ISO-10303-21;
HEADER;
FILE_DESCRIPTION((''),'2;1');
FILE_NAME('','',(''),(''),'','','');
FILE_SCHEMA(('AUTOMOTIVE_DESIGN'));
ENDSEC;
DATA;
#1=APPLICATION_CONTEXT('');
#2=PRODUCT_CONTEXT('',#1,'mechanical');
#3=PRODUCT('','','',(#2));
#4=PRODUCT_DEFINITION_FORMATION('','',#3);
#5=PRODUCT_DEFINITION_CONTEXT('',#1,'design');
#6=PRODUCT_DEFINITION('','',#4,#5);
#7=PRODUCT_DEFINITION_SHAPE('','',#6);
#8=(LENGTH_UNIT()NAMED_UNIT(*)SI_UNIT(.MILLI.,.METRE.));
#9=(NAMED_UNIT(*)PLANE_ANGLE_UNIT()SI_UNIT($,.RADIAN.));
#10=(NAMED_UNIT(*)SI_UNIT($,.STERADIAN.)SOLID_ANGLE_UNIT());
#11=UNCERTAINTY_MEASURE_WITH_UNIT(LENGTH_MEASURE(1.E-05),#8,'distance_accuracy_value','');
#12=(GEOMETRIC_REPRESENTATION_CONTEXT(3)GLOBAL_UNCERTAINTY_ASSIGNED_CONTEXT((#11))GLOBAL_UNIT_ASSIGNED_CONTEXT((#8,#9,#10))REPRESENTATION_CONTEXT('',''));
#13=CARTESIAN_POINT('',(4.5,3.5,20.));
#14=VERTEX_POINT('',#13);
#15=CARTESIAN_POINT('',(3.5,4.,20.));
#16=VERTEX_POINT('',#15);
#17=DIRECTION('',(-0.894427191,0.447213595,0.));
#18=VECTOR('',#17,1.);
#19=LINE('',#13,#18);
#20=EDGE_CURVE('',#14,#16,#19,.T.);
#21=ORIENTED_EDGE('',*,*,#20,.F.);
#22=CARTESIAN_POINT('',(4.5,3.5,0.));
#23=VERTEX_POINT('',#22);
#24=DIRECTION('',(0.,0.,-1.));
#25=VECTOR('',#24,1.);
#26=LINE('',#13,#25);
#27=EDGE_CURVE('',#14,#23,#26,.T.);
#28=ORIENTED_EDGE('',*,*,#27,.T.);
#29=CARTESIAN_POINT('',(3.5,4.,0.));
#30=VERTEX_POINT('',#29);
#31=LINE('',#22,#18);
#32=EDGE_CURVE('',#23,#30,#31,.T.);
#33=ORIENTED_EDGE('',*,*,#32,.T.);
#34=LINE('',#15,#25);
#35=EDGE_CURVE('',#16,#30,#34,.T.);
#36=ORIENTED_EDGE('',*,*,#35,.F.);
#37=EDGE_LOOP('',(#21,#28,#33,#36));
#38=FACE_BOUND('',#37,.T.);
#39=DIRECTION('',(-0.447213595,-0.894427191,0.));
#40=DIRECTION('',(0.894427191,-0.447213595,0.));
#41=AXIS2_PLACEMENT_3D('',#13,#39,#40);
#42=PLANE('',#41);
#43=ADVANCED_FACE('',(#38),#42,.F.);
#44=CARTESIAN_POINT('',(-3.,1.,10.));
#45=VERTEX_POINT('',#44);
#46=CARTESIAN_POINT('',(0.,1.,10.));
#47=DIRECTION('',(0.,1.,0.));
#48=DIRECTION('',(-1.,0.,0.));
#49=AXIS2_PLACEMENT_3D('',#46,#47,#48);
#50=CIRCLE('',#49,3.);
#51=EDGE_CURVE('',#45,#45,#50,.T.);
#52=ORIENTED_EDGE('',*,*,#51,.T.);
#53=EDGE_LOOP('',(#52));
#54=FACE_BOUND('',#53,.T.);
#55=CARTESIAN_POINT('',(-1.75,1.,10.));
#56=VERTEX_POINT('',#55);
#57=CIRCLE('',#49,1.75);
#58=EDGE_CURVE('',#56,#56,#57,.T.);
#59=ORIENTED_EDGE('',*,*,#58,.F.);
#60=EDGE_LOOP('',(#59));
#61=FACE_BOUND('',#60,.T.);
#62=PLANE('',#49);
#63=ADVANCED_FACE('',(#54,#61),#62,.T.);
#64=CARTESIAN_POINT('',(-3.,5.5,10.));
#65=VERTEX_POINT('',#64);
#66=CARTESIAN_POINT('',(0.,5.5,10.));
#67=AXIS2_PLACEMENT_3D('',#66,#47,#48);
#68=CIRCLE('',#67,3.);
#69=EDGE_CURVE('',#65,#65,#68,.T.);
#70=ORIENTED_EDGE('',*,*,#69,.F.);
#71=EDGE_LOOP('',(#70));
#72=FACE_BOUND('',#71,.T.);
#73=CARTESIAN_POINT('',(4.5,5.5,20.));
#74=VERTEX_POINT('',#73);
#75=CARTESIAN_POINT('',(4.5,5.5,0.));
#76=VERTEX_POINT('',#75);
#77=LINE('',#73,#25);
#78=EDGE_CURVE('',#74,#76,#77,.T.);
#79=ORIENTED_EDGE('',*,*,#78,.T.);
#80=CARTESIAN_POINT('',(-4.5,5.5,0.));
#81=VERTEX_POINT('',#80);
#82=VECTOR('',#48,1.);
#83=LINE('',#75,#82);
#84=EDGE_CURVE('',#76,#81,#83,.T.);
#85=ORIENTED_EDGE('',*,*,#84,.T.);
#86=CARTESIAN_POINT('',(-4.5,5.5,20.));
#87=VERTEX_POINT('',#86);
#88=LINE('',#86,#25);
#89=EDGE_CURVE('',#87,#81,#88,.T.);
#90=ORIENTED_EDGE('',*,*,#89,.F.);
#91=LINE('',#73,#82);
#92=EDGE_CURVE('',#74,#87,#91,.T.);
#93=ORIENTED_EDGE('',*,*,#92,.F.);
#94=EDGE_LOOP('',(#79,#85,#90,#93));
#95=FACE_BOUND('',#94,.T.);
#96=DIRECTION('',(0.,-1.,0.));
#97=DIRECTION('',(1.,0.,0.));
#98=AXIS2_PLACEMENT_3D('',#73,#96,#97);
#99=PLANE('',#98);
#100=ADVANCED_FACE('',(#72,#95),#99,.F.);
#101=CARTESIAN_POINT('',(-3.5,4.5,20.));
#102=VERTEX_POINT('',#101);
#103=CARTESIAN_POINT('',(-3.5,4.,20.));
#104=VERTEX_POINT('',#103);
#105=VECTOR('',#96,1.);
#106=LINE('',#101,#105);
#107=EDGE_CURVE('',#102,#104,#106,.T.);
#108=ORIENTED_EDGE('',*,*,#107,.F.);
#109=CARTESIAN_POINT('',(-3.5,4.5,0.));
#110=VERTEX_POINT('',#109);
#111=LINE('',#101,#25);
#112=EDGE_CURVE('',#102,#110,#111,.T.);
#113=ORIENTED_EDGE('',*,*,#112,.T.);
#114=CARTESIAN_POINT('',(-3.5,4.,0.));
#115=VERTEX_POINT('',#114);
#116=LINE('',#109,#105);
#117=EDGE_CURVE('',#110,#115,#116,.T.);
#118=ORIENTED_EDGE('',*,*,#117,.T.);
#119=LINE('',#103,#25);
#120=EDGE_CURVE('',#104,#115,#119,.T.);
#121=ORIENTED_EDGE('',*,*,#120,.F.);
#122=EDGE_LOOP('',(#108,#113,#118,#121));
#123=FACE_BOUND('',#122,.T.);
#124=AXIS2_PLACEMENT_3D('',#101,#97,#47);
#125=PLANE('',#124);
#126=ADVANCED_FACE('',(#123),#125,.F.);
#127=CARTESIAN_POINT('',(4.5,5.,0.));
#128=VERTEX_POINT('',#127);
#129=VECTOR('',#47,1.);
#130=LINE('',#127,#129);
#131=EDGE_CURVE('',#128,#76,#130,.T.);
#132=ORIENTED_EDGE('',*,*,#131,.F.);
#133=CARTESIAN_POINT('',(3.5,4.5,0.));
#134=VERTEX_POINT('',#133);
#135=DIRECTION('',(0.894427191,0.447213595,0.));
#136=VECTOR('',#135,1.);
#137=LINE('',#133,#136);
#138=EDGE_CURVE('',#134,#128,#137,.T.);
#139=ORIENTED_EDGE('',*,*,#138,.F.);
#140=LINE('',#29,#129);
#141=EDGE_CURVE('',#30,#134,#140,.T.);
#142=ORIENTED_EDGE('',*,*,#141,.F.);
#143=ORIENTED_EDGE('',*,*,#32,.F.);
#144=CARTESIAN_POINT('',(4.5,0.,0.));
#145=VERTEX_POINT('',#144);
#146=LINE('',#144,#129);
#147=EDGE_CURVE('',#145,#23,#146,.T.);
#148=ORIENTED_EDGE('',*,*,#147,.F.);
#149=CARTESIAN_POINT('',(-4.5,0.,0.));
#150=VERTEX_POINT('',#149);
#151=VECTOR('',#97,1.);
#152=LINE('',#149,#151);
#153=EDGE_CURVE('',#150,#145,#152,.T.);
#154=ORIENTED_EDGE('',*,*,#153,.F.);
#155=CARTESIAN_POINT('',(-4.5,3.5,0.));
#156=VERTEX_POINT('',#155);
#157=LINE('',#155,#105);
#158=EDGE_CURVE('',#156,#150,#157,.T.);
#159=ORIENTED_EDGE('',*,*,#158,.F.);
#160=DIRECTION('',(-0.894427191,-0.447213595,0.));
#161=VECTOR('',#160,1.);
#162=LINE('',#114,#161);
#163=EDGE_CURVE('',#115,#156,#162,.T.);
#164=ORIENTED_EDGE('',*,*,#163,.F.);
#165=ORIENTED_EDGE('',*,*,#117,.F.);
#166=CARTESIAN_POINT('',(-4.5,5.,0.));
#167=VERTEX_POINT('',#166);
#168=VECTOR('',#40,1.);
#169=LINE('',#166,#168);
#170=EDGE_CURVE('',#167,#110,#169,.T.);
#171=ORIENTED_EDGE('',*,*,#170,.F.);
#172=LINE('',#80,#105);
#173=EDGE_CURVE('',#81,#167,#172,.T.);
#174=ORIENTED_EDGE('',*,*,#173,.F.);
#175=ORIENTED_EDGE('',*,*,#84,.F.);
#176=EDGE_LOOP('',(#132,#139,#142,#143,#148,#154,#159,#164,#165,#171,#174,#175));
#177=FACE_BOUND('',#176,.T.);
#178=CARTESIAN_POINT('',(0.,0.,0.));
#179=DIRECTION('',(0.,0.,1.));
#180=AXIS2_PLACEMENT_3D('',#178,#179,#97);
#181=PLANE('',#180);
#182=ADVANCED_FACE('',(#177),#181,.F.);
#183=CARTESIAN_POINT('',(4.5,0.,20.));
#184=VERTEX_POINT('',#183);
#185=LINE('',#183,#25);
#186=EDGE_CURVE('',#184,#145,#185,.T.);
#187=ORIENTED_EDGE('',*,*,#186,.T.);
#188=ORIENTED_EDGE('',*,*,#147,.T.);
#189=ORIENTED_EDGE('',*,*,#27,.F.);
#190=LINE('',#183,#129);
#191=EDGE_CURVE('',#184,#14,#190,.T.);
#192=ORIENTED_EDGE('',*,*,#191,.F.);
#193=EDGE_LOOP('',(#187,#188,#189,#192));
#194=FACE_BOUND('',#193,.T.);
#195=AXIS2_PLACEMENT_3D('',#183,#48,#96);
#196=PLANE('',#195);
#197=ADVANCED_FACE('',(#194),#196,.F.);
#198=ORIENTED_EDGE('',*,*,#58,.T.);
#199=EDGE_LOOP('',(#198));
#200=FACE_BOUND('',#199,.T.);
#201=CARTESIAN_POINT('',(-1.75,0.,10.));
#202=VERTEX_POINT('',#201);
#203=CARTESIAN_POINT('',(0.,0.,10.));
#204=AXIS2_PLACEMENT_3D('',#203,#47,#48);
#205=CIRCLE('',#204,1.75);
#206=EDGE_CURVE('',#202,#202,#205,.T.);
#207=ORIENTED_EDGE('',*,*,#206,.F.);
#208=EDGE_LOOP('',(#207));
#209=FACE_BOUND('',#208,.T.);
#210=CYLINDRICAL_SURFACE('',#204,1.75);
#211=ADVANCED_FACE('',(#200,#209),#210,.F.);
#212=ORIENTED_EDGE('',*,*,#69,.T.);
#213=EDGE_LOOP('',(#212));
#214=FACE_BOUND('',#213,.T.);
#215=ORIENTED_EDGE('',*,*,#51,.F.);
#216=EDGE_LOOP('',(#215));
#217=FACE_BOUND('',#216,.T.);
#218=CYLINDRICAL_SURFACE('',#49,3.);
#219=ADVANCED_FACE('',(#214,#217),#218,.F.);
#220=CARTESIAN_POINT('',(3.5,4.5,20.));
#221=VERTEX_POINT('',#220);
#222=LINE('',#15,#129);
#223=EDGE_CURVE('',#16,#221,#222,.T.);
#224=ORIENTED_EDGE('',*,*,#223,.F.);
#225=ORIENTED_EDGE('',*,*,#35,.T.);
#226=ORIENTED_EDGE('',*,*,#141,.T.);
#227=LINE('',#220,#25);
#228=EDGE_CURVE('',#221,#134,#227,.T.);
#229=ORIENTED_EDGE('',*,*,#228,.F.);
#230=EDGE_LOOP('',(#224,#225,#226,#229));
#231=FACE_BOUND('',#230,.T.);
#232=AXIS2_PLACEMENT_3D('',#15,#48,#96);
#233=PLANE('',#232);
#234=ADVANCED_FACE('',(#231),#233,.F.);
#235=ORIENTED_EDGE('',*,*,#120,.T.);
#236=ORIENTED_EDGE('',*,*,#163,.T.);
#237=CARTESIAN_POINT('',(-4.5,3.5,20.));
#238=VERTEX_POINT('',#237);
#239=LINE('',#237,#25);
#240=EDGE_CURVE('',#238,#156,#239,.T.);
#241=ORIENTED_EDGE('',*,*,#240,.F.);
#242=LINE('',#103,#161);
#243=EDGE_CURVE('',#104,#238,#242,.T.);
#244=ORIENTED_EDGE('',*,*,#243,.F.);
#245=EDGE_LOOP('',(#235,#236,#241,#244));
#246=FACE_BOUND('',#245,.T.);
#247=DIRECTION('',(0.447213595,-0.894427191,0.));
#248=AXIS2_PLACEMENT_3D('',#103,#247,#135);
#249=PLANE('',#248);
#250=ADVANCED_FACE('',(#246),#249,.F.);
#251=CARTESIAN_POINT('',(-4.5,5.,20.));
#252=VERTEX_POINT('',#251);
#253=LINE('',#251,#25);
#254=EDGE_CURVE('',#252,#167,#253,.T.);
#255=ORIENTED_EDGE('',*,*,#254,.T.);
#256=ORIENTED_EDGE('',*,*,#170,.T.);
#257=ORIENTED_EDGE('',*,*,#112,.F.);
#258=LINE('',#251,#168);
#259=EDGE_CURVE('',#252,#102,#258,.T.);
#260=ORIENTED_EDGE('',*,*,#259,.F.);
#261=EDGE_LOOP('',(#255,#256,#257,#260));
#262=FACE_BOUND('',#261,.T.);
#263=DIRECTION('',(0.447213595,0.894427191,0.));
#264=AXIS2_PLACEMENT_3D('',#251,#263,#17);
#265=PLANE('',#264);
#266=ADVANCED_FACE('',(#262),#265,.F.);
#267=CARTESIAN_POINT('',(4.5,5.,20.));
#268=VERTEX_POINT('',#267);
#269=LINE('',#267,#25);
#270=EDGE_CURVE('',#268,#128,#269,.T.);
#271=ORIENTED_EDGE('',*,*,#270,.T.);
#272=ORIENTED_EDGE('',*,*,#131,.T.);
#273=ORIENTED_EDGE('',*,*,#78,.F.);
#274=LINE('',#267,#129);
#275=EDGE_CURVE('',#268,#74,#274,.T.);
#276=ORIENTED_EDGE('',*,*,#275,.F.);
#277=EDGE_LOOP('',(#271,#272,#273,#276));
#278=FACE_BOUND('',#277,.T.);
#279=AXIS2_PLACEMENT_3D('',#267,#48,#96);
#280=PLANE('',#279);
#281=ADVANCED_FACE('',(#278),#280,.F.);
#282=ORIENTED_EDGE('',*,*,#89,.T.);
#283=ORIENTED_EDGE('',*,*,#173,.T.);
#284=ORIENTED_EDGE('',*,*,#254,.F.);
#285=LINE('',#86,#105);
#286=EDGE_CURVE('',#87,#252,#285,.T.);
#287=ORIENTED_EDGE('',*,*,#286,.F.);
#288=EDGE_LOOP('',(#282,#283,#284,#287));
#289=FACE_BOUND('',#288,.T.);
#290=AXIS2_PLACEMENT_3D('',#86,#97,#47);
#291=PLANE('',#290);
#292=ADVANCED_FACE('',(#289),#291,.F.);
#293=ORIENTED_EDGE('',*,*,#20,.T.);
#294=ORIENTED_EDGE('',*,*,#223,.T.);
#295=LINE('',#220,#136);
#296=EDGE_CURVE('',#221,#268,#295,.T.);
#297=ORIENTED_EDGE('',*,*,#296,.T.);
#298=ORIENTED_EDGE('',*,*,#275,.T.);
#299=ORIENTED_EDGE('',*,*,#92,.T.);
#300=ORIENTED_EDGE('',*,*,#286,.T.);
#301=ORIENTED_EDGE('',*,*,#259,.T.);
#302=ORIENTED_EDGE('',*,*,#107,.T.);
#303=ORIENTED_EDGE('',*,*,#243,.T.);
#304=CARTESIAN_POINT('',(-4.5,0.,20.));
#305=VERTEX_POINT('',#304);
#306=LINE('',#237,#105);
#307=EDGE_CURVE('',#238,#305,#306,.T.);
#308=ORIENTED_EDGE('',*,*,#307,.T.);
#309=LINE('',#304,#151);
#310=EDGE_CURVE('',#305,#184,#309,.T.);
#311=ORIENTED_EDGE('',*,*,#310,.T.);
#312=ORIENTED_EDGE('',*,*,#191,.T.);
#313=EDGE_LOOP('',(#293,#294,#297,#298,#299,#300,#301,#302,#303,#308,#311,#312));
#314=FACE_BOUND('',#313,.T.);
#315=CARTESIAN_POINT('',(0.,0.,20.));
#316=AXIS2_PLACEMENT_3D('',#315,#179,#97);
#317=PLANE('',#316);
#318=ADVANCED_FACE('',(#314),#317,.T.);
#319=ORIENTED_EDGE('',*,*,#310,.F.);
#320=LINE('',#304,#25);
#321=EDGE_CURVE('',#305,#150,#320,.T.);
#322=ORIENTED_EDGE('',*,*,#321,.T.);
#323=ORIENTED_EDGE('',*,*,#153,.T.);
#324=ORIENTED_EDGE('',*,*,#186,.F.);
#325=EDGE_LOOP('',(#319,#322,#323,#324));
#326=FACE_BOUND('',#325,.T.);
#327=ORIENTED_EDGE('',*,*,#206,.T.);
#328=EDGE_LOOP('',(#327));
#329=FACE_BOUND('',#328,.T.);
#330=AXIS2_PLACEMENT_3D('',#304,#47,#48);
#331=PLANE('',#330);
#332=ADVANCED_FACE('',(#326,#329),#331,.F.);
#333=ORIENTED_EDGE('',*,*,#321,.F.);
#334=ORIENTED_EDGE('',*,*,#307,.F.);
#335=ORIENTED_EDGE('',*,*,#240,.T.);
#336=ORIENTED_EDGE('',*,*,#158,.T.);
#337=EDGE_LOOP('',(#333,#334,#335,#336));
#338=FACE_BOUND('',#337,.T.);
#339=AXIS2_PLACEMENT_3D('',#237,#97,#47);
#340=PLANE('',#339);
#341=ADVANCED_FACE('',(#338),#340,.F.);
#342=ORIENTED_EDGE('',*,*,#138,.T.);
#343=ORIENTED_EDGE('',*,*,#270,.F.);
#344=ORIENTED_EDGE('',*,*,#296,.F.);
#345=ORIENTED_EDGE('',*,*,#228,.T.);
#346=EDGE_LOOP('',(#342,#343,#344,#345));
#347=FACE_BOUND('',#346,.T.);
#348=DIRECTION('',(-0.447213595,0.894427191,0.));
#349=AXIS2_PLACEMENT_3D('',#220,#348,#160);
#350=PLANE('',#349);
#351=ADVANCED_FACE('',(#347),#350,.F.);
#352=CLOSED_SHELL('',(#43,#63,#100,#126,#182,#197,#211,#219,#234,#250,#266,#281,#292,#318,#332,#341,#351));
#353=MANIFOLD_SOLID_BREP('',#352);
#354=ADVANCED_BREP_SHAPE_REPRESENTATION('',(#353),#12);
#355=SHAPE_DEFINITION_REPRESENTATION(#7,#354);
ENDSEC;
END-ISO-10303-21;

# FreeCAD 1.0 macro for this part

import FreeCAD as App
import Part
import Sketcher
from FreeCAD import Vector

doc = App.newDocument("Part")
body = doc.addObject("PartDesign::Body", "Body")

sketch1 = doc.addObject("Sketcher::SketchObject", "Sketch")
body.addObject(sketch1)
sketch1.AttachmentSupport = (doc.XY_Plane, [""])
sketch1.MapMode = "FlatFace"
sketch1.addGeometry([
    Part.LineSegment(Vector(-4.5, 0, 0), Vector(4.5, 0, 0)),
    Part.LineSegment(Vector(4.5, 0, 0), Vector(4.5, 3.5, 0)),
    Part.LineSegment(Vector(4.5, 3.5, 0), Vector(3.5, 4, 0)),
    Part.LineSegment(Vector(3.5, 4, 0), Vector(3.5, 4.5, 0)),
    Part.LineSegment(Vector(3.5, 4.5, 0), Vector(4.5, 5, 0)),
    Part.LineSegment(Vector(4.5, 5, 0), Vector(4.5, 5.5, 0)),
    Part.LineSegment(Vector(4.5, 5.5, 0), Vector(-4.5, 5.5, 0)),
    Part.LineSegment(Vector(-4.5, 5.5, 0), Vector(-4.5, 5, 0)),
    Part.LineSegment(Vector(-4.5, 5, 0), Vector(-3.5, 4.5, 0)),
    Part.LineSegment(Vector(-3.5, 4.5, 0), Vector(-3.5, 4, 0)),
    Part.LineSegment(Vector(-3.5, 4, 0), Vector(-4.5, 3.5, 0)),
    Part.LineSegment(Vector(-4.5, 3.5, 0), Vector(-4.5, 0, 0)),
], False)
sketch1.addConstraint([
    Sketcher.Constraint("Coincident", 0, 2, 1, 1),
    Sketcher.Constraint("Coincident", 1, 2, 2, 1),
    Sketcher.Constraint("Coincident", 2, 2, 3, 1),
    Sketcher.Constraint("Coincident", 3, 2, 4, 1),
    Sketcher.Constraint("Coincident", 4, 2, 5, 1),
    Sketcher.Constraint("Coincident", 5, 2, 6, 1),
    Sketcher.Constraint("Coincident", 6, 2, 7, 1),
    Sketcher.Constraint("Coincident", 7, 2, 8, 1),
    Sketcher.Constraint("Coincident", 8, 2, 9, 1),
    Sketcher.Constraint("Coincident", 9, 2, 10, 1),
    Sketcher.Constraint("Coincident", 10, 2, 11, 1),
    Sketcher.Constraint("Coincident", 11, 2, 0, 1),
    Sketcher.Constraint("Horizontal", 0),
    Sketcher.Constraint("Vertical", 1),
    Sketcher.Constraint("Vertical", 3),
    Sketcher.Constraint("Vertical", 5),
    Sketcher.Constraint("Horizontal", 6),
    Sketcher.Constraint("Vertical", 7),
    Sketcher.Constraint("Vertical", 9),
    Sketcher.Constraint("Vertical", 11),
    Sketcher.Constraint("Symmetric", 0, 2, 11, 2, -1, 1),
    Sketcher.Constraint("Symmetric", 4, 2, 7, 2, -2),
    Sketcher.Constraint("Symmetric", 3, 2, 8, 2, -2),
    Sketcher.Constraint("Parallel", 2, 8),
    Sketcher.Constraint("Parallel", 4, 10),
    Sketcher.Constraint("Horizontal", 2, 2, 9, 2),
    Sketcher.Constraint("Vertical", 1, 2, 4, 2),
    Sketcher.Constraint("Equal", 3, 5),
    Sketcher.Constraint("DistanceX", 0, 1, 0, 2, 9.0),
    Sketcher.Constraint("DistanceY", 1, 1, 1, 2, 3.5),
    Sketcher.Constraint("DistanceY", 3, 1, 3, 2, 0.5),
    Sketcher.Constraint("DistanceY", -1, 1, 2, 2, 4.0),
    Sketcher.Constraint("DistanceX", 2, 2, 1, 2, 1.0),
])
pad1 = doc.addObject("PartDesign::Pad", "Pad")
body.addObject(pad1)
pad1.Profile = sketch1
pad1.Length = 20

sketch2 = doc.addObject("Sketcher::SketchObject", "Sketch001")
body.addObject(sketch2)
sketch2.AttachmentSupport = (doc.XZ_Plane, [""])
sketch2.MapMode = "FlatFace"
sketch2.AttachmentOffset = App.Placement(Vector(0, 0, -5.5), App.Rotation())
sketch2.addGeometry(Part.Circle(Vector(0, 10, 0), Vector(0, 0, 1), 3), False)
sketch2.addConstraint([
    Sketcher.Constraint("PointOnObject", 0, 3, -2),
    Sketcher.Constraint("Diameter", 0, 6.0),
    Sketcher.Constraint("DistanceY", -1, 1, 0, 3, 10.0),
])
pocket1 = doc.addObject("PartDesign::Pocket", "Pocket")
body.addObject(pocket1)
pocket1.Profile = sketch2
pocket1.Length = 4.5
pocket1.Reversed = True

sketch3 = doc.addObject("Sketcher::SketchObject", "Sketch002")
body.addObject(sketch3)
sketch3.AttachmentSupport = (doc.XZ_Plane, [""])
sketch3.MapMode = "FlatFace"
sketch3.AttachmentOffset = App.Placement(Vector(0, 0, -1), App.Rotation())
sketch3.addGeometry(Part.Circle(Vector(0, 10, 0), Vector(0, 0, 1), 1.75), False)
sketch3.addConstraint([
    Sketcher.Constraint("PointOnObject", 0, 3, -2),
    Sketcher.Constraint("Diameter", 0, 3.5),
    Sketcher.Constraint("DistanceY", -1, 1, 0, 3, 10.0),
])
pocket2 = doc.addObject("PartDesign::Pocket", "Pocket001")
body.addObject(pocket2)
pocket2.Profile = sketch3
pocket2.Type = "ThroughAll"
pocket2.Reversed = True

doc.recompute()
